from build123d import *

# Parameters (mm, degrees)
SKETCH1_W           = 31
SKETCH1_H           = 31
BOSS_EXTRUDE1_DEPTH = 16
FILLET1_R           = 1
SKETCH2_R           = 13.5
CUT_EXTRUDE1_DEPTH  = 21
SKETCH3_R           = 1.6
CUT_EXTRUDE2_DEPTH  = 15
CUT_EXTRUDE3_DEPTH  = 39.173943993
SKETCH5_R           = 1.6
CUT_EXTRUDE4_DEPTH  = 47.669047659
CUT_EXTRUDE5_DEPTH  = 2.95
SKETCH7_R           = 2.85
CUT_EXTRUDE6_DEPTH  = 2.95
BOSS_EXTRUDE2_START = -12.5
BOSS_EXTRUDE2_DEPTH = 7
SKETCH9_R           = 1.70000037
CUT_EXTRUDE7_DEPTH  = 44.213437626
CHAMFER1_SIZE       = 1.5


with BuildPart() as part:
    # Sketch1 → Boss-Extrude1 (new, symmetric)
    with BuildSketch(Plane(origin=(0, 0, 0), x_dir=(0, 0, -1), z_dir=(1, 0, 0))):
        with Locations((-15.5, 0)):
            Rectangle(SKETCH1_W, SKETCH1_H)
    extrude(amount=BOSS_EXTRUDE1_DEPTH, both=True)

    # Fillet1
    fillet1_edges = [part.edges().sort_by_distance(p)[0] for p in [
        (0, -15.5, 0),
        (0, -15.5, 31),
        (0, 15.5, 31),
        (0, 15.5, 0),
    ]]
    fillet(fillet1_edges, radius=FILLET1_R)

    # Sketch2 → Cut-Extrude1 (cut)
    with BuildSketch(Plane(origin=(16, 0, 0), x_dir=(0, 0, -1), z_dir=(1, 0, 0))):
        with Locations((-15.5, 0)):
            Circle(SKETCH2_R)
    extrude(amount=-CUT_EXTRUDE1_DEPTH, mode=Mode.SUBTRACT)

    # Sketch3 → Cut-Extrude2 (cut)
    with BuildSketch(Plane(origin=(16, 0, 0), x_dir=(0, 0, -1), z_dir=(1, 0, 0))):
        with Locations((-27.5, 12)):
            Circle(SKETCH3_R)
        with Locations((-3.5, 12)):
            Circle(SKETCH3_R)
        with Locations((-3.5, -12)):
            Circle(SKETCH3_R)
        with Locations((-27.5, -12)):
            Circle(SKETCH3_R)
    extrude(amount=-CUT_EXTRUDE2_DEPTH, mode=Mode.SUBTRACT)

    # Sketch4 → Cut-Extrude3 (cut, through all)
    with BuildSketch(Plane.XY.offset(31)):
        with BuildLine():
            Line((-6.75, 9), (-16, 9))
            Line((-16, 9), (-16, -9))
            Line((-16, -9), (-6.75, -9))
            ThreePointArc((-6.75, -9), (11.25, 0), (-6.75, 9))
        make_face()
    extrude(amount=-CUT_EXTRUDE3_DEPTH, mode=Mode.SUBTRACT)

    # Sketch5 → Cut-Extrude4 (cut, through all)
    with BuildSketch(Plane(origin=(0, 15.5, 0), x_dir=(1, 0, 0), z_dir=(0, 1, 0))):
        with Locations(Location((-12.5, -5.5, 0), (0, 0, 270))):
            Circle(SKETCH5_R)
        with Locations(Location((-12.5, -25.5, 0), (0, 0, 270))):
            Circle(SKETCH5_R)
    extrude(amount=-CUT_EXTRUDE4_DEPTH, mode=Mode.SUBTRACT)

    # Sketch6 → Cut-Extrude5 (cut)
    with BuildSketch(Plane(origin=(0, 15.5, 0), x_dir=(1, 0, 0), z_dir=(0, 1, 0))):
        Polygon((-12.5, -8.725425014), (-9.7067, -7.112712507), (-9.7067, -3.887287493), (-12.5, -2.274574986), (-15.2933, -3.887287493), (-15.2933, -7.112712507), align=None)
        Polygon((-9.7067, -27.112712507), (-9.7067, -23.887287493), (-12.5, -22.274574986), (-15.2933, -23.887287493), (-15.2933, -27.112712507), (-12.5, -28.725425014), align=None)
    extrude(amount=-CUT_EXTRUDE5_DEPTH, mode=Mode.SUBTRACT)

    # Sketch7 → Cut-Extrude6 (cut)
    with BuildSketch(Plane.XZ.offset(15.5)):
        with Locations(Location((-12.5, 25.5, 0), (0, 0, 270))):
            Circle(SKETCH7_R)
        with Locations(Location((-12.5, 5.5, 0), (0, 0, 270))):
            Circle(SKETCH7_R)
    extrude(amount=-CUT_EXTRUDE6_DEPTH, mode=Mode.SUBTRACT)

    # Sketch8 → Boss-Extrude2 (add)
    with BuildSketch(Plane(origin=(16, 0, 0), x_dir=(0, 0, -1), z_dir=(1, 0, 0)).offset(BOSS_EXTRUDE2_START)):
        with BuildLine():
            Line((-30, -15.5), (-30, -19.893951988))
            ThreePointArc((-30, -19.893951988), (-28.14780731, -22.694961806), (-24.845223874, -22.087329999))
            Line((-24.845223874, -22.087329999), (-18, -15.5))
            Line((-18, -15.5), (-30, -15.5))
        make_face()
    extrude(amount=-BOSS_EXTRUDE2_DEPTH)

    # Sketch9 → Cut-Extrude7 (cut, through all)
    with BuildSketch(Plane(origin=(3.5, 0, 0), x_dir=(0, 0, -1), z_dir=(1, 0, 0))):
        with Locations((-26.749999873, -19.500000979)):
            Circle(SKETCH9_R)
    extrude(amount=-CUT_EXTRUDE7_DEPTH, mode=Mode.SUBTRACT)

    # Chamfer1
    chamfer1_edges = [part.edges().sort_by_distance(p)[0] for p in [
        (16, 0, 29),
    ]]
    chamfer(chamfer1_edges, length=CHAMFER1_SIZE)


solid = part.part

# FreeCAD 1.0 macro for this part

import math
import FreeCAD as App
import Part
import Sketcher
from FreeCAD import Vector
Q = App.Units.Quantity


def edges_at(feature, points):
    """Names of the edges that pass closest to the given points."""
    edges = feature.Shape.Edges
    near = lambda p: min(range(len(edges)), key=lambda i: edges[i].distToShape(Part.Vertex(*p))[0])
    return sorted({f"Edge{near(p) + 1}" for p in points})

doc = App.newDocument("Part")
body = doc.addObject("PartDesign::Body", "Body")

# Sketch on YZ plane
sketch1 = body.newObject("Sketcher::SketchObject", "Sketch")
sketch1.AttachmentSupport = (doc.getObject("YZ_Plane"), [""])
sketch1.MapMode = "FlatFace"
sketch1.addGeometry([
    Part.LineSegment(Vector(16, 31, 0), Vector(-16, 31, 0)),
    Part.LineSegment(Vector(-16, 31, 0), Vector(-16, 0, 0)),
    Part.LineSegment(Vector(-16, 0, 0), Vector(16, 0, 0)),
    Part.LineSegment(Vector(16, 0, 0), Vector(16, 31, 0)),
], False)
sketch1.addConstraint([
    Sketcher.Constraint("Coincident", 0, 2, 1, 1),
    Sketcher.Constraint("Coincident", 1, 2, 2, 1),
    Sketcher.Constraint("Coincident", 2, 2, 3, 1),
    Sketcher.Constraint("Coincident", 3, 2, 0, 1),
    Sketcher.Constraint("Horizontal", 0),
    Sketcher.Constraint("Vertical", 1),
    Sketcher.Constraint("Horizontal", 2),
    Sketcher.Constraint("Vertical", 3),
    Sketcher.Constraint("Symmetric", 1, 2, 2, 2, -1, 1),
    Sketcher.Constraint("Equal", 2, 1),
    Sketcher.Constraint("DistanceX", 0, 2, 0, 1, 31.0),
])
pad1 = body.newObject("PartDesign::Pad", "Pad")
pad1.Profile = sketch1
pad1.Length = 32
pad1.Midplane = True
doc.recompute()

fillet = body.newObject("PartDesign::Fillet", "Fillet")
fillet.Base = (pad1, edges_at(pad1, [
    (0, -15.5, 0),
    (0, -15.5, 31),
    (0, 15.5, 31),
    (0, 15.5, 0),
]))
fillet.Radius = 1

# Sketch on YZ plane
sketch2 = body.newObject("Sketcher::SketchObject", "Sketch001")
sketch2.AttachmentSupport = (doc.getObject("YZ_Plane"), [""])
sketch2.MapMode = "FlatFace"
sketch2.AttachmentOffset = App.Placement(Vector(0, 0, 16), App.Rotation())
sketch2.addGeometry(Part.Circle(Vector(0, 16, 0), Vector(0, 0, 1), 14), False)
sketch2.addConstraint([
    Sketcher.Constraint("PointOnObject", 0, 3, -2),
    Sketcher.Constraint("Diameter", 0, 27.0),
    Sketcher.Constraint("DistanceY", -1, 1, 0, 3, 15.5),
])
pocket1 = body.newObject("PartDesign::Pocket", "Pocket")
pocket1.Profile = sketch2
pocket1.Length = 21

# Sketch on YZ plane
sketch3 = body.newObject("Sketcher::SketchObject", "Sketch002")
sketch3.AttachmentSupport = (doc.getObject("YZ_Plane"), [""])
sketch3.MapMode = "FlatFace"
sketch3.AttachmentOffset = App.Placement(Vector(0, 0, 16), App.Rotation())
sketch3.addGeometry([
    Part.Circle(Vector(12, 27.5, 0), Vector(0, 0, 1), 1.6),
    Part.Circle(Vector(12, 3.5, 0), Vector(0, 0, 1), 1.6),
    Part.Circle(Vector(-12, 3.5, 0), Vector(0, 0, 1), 1.6),
    Part.Circle(Vector(-12, 27.5, 0), Vector(0, 0, 1), 1.6),
], False)
sketch3.addConstraint([
    Sketcher.Constraint("Equal", 0, 1),
    Sketcher.Constraint("Equal", 1, 2),
    Sketcher.Constraint("Equal", 2, 3),
    Sketcher.Constraint("Symmetric", 1, 3, 2, 3, -2),
    Sketcher.Constraint("Symmetric", 0, 3, 3, 3, -2),
    Sketcher.Constraint("Vertical", 0, 3, 1, 3),
    Sketcher.Constraint("Diameter", 0, 3.2),
    Sketcher.Constraint("DistanceX", -1, 1, 0, 3, 12.0),
    Sketcher.Constraint("DistanceY", 1, 3, 0, 3, 24.0),
    Sketcher.Constraint("DistanceY", -1, 1, 0, 3, 27.5),
])
pocket2 = body.newObject("PartDesign::Pocket", "Pocket001")
pocket2.Profile = sketch3
pocket2.Length = 15

# Sketch on XY plane
sketch4 = body.newObject("Sketcher::SketchObject", "Sketch003")
sketch4.AttachmentSupport = (doc.getObject("XY_Plane"), [""])
sketch4.MapMode = "FlatFace"
sketch4.AttachmentOffset = App.Placement(Vector(0, 0, 31), App.Rotation())
sketch4.addGeometry([
    Part.LineSegment(Vector(-7, 9, 0), Vector(-16, 9, 0)),
    Part.LineSegment(Vector(-16, 9, 0), Vector(-16, -9, 0)),
    Part.LineSegment(Vector(-16, -9, 0), Vector(-7, -9, 0)),
    Part.ArcOfCircle(Part.Circle(Vector(0, 0, 0), Vector(0, 0, 1), 11), math.radians(-127), math.radians(127)),
], False)
sketch4.addConstraint([
    Sketcher.Constraint("Coincident", 0, 2, 1, 1),
    Sketcher.Constraint("Coincident", 1, 2, 2, 1),
    Sketcher.Constraint("Coincident", 2, 2, 3, 1),
    Sketcher.Constraint("Coincident", 3, 2, 0, 1),
    Sketcher.Constraint("Horizontal", 0),
    Sketcher.Constraint("Vertical", 1),
    Sketcher.Constraint("Horizontal", 2),
    Sketcher.Constraint("Coincident", 3, 3, -1, 1),
    Sketcher.Constraint("Vertical", 2, 2, 3, 2),
    Sketcher.Constraint("DistanceY", 1, 2, 1, 1, 18.0),
    Sketcher.Constraint("Radius", 3, 11.25),
    Sketcher.Constraint("DistanceX", 0, 2, -1, 1, 16.0),
])
pocket3 = body.newObject("PartDesign::Pocket", "Pocket002")
pocket3.Profile = sketch4
pocket3.Type = "ThroughAll"

# Sketch on XZ plane
sketch5 = body.newObject("Sketcher::SketchObject", "Sketch004")
sketch5.AttachmentSupport = (doc.getObject("XZ_Plane"), [""])
sketch5.MapMode = "FlatFace"
sketch5.AttachmentOffset = App.Placement(Vector(0, 0, -15.5), App.Rotation())
sketch5.addGeometry([
    Part.Circle(Vector(-12.5, 5.5, 0), Vector(0, 0, 1), 1.6),
    Part.Circle(Vector(-12.5, 25.5, 0), Vector(0, 0, 1), 1.6),
], False)
sketch5.addConstraint([
    Sketcher.Constraint("Equal", 0, 1),
    Sketcher.Constraint("Vertical", 0, 3, 1, 3),
    Sketcher.Constraint("Diameter", 0, 3.2),
    Sketcher.Constraint("DistanceY", 0, 3, 1, 3, 20.0),
    Sketcher.Constraint("DistanceX", 0, 3, -1, 1, 12.5),
    Sketcher.Constraint("DistanceY", -1, 1, 0, 3, 5.5),
])
pocket4 = body.newObject("PartDesign::Pocket", "Pocket003")
pocket4.Profile = sketch5
pocket4.Type = "ThroughAll"
pocket4.Reversed = True

# Sketch on XZ plane
sketch6 = body.newObject("Sketcher::SketchObject", "Sketch005")
sketch6.AttachmentSupport = (doc.getObject("XZ_Plane"), [""])
sketch6.MapMode = "FlatFace"
sketch6.AttachmentOffset = App.Placement(Vector(0, 0, -15.5), App.Rotation())
sketch6.addGeometry([
    Part.LineSegment(Vector(-12.5, 8.7, 0), Vector(-9.7, 7.1, 0)),  # 0
    Part.LineSegment(Vector(-9.7, 7.1, 0), Vector(-9.7, 3.9, 0)),  # 1
    Part.LineSegment(Vector(-9.7, 3.9, 0), Vector(-12.5, 2.3, 0)),  # 2
    Part.LineSegment(Vector(-12.5, 2.3, 0), Vector(-15.3, 3.9, 0)),  # 3
    Part.LineSegment(Vector(-15.3, 3.9, 0), Vector(-15.3, 7.1, 0)),  # 4
    Part.LineSegment(Vector(-15.3, 7.1, 0), Vector(-12.5, 8.7, 0)),  # 5
    Part.LineSegment(Vector(-9.7, 27.1, 0), Vector(-9.7, 23.9, 0)),  # 6
    Part.LineSegment(Vector(-9.7, 23.9, 0), Vector(-12.5, 22.3, 0)),  # 7
    Part.LineSegment(Vector(-12.5, 22.3, 0), Vector(-15.3, 23.9, 0)),  # 8
    Part.LineSegment(Vector(-15.3, 23.9, 0), Vector(-15.3, 27.1, 0)),  # 9
    Part.LineSegment(Vector(-15.3, 27.1, 0), Vector(-12.5, 28.7, 0)),  # 10
    Part.LineSegment(Vector(-12.5, 28.7, 0), Vector(-9.7, 27.1, 0)),  # 11
], False)
sketch6.addConstraint([
    Sketcher.Constraint("Coincident", 0, 2, 1, 1),
    Sketcher.Constraint("Coincident", 1, 2, 2, 1),
    Sketcher.Constraint("Coincident", 2, 2, 3, 1),
    Sketcher.Constraint("Coincident", 3, 2, 4, 1),
    Sketcher.Constraint("Coincident", 4, 2, 5, 1),
    Sketcher.Constraint("Coincident", 5, 2, 0, 1),
    Sketcher.Constraint("Coincident", 6, 2, 7, 1),
    Sketcher.Constraint("Coincident", 7, 2, 8, 1),
    Sketcher.Constraint("Coincident", 8, 2, 9, 1),
    Sketcher.Constraint("Coincident", 9, 2, 10, 1),
    Sketcher.Constraint("Coincident", 10, 2, 11, 1),
    Sketcher.Constraint("Coincident", 11, 2, 6, 1),
    Sketcher.Constraint("Vertical", 1),
    Sketcher.Constraint("Vertical", 4),
    Sketcher.Constraint("Vertical", 6),
    Sketcher.Constraint("Vertical", 9),
    Sketcher.Constraint("Parallel", 0, 3),
    Sketcher.Constraint("Parallel", 2, 5),
    Sketcher.Constraint("Parallel", 5, 7),
    Sketcher.Constraint("Parallel", 3, 8),
    Sketcher.Constraint("Parallel", 7, 10),
    Sketcher.Constraint("Parallel", 8, 11),
    Sketcher.Constraint("Horizontal", 1, 2, 3, 2),
    Sketcher.Constraint("Horizontal", 0, 2, 4, 2),
    Sketcher.Constraint("Horizontal", 6, 2, 8, 2),
    Sketcher.Constraint("Horizontal", 9, 2, 11, 2),
    Sketcher.Constraint("Vertical", 2, 2, 5, 2),
    Sketcher.Constraint("Vertical", 1, 2, 6, 2),
    Sketcher.Constraint("Vertical", 5, 2, 7, 2),
    Sketcher.Constraint("Equal", 4, 6),
    Sketcher.Constraint("Angle", 0, Q("-30 deg")),
    Sketcher.Constraint("DistanceY", 1, 2, 6, 2, 20.0),
    Sketcher.Constraint("DistanceX", 2, 2, -1, 1, 12.5),
    Sketcher.Constraint("DistanceX", 0, 2, -1, 1, 9.7067),
    Sketcher.Constraint("DistanceY", 1, 2, 1, 1, 3.225425),
    Sketcher.Constraint("DistanceY", -1, 1, 0, 2, 7.112713),
])
pocket5 = body.newObject("PartDesign::Pocket", "Pocket004")
pocket5.Profile = sketch6
pocket5.Length = 2.95
pocket5.Reversed = True

# Sketch on XZ plane
sketch7 = body.newObject("Sketcher::SketchObject", "Sketch006")
sketch7.AttachmentSupport = (doc.getObject("XZ_Plane"), [""])
sketch7.MapMode = "FlatFace"
sketch7.AttachmentOffset = App.Placement(Vector(0, 0, 15.5), App.Rotation())
sketch7.addGeometry([
    Part.Circle(Vector(-12.5, 25.5, 0), Vector(0, 0, 1), 2.9),
    Part.Circle(Vector(-12.5, 5.5, 0), Vector(0, 0, 1), 2.9),
], False)
sketch7.addConstraint([
    Sketcher.Constraint("Equal", 0, 1),
    Sketcher.Constraint("Vertical", 0, 3, 1, 3),
    Sketcher.Constraint("Diameter", 0, 5.7),
    Sketcher.Constraint("DistanceY", 1, 3, 0, 3, 20.0),
    Sketcher.Constraint("DistanceX", 0, 3, -1, 1, 12.5),
    Sketcher.Constraint("DistanceY", -1, 1, 0, 3, 25.5),
])
pocket6 = body.newObject("PartDesign::Pocket", "Pocket005")
pocket6.Profile = sketch7
pocket6.Length = 2.95

# Sketch on YZ plane
sketch8 = body.newObject("Sketcher::SketchObject", "Sketch007")
sketch8.AttachmentSupport = (doc.getObject("YZ_Plane"), [""])
sketch8.MapMode = "FlatFace"
sketch8.AttachmentOffset = App.Placement(Vector(0, 0, 3.5), App.Rotation())
sketch8.addGeometry([
    Part.LineSegment(Vector(-15.5, 30, 0), Vector(-19.9, 30, 0)),
    Part.ArcOfCircle(Part.Circle(Vector(-19.9, 27, 0), Vector(0, 0, 1), 3), math.radians(90), math.radians(224)),
    Part.LineSegment(Vector(-22.1, 24.8, 0), Vector(-15.5, 18, 0)),
    Part.LineSegment(Vector(-15.5, 18, 0), Vector(-15.5, 30, 0)),
], False)
sketch8.addConstraint([
    Sketcher.Constraint("Tangent", 0, 2, 1, 1),
    Sketcher.Constraint("Tangent", 1, 2, 2, 1),
    Sketcher.Constraint("Coincident", 2, 2, 3, 1),
    Sketcher.Constraint("Coincident", 3, 2, 0, 1),
    Sketcher.Constraint("Horizontal", 0),
    Sketcher.Constraint("Vertical", 3),
    Sketcher.Constraint("DistanceY", 3, 1, 3, 2, 12.0),
    Sketcher.Constraint("DistanceY", -1, 1, 0, 2, 30.0),
    Sketcher.Constraint("Distance", 2, 9.5),
    Sketcher.Constraint("DistanceX", 2, 2, -1, 1, 15.5),
    Sketcher.Constraint("Radius", 1, 3.044034),
])
pad2 = body.newObject("PartDesign::Pad", "Pad001")
pad2.Profile = sketch8
pad2.Length = 7
pad2.Reversed = True

# Sketch on YZ plane
sketch9 = body.newObject("Sketcher::SketchObject", "Sketch008")
sketch9.AttachmentSupport = (doc.getObject("YZ_Plane"), [""])
sketch9.MapMode = "FlatFace"
sketch9.AttachmentOffset = App.Placement(Vector(0, 0, 3.5), App.Rotation())
sketch9.addGeometry(Part.Circle(Vector(-19.5, 26.7, 0), Vector(0, 0, 1), 1.7), False)
sketch9.addConstraint([
    Sketcher.Constraint("Diameter", 0, 3.400001),
    Sketcher.Constraint("DistanceX", 0, 3, -1, 1, 19.500001),
    Sketcher.Constraint("DistanceY", -1, 1, 0, 3, 26.75),
])
pocket7 = body.newObject("PartDesign::Pocket", "Pocket006")
pocket7.Profile = sketch9
pocket7.Type = "ThroughAll"
doc.recompute()

chamfer = body.newObject("PartDesign::Chamfer", "Chamfer")
chamfer.Base = (pocket7, edges_at(pocket7, [(16, 0, 29)]))
chamfer.Size = 1.5

doc.recompute()
